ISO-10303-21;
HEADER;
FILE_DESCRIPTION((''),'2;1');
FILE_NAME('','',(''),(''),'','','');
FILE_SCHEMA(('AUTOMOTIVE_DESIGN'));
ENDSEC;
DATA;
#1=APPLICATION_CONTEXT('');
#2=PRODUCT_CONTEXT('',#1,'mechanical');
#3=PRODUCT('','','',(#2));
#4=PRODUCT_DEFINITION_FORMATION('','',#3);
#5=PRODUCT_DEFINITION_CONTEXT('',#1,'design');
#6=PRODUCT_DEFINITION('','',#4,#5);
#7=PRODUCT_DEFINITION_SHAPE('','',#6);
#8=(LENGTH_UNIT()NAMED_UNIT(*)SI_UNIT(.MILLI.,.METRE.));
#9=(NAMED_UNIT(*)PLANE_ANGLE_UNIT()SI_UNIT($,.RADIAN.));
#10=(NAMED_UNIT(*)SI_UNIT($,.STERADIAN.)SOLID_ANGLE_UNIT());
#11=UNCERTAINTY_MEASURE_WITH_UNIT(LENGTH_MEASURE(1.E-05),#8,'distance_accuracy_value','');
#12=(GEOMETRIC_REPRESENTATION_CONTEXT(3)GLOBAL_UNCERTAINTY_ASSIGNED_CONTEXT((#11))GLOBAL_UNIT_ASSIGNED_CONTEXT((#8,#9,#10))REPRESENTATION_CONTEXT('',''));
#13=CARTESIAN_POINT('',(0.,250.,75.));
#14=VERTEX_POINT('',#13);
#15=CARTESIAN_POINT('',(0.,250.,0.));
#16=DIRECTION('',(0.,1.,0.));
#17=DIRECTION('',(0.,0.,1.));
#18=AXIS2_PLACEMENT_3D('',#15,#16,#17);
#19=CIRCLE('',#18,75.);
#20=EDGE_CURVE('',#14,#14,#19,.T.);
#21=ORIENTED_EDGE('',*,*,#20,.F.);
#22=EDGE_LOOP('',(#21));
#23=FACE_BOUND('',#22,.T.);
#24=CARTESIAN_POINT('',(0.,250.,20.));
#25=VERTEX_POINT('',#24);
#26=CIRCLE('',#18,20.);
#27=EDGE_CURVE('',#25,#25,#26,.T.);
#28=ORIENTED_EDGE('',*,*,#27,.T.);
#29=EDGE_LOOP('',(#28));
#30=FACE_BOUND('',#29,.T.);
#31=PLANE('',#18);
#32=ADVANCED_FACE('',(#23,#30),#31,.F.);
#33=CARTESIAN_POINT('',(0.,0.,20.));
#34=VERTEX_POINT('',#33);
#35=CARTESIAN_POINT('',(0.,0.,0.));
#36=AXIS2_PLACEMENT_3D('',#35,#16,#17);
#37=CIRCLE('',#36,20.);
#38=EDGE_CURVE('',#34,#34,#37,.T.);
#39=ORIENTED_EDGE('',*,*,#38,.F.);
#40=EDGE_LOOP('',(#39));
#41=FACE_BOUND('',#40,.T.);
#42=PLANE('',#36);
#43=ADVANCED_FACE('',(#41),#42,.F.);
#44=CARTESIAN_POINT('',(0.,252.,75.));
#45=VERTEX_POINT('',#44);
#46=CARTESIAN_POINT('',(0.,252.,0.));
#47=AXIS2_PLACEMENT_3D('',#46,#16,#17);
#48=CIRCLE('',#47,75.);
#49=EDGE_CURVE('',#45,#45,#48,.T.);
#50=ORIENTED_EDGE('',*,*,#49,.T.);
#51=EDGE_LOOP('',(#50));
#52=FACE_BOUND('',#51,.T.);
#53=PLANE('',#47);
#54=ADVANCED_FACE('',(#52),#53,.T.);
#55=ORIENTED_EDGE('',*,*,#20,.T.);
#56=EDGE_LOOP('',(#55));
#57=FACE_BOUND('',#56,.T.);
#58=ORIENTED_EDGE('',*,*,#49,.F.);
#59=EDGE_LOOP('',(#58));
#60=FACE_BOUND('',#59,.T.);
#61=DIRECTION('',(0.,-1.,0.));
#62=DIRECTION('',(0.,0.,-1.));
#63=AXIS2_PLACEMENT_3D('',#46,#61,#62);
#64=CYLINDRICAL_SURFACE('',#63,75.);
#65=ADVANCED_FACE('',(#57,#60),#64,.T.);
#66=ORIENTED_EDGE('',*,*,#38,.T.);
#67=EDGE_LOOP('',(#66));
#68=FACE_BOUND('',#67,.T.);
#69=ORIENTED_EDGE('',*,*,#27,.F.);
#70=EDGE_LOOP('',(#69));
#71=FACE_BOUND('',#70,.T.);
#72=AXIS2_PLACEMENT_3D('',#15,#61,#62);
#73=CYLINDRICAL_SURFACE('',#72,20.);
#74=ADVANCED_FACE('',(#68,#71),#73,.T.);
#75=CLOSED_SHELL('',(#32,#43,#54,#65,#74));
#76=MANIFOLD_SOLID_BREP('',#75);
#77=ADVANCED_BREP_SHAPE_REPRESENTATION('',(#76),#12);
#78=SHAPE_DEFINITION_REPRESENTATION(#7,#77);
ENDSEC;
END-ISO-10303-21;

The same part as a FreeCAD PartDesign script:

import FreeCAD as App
import Part
import Sketcher
Q = App.Units.Quantity

doc = App.newDocument("Part")
body = doc.addObject("PartDesign::Body", "Body")

sketch1 = body.newObject("Sketcher::SketchObject", "Sketch")
sketch1.AttachmentSupport = (doc.getObject("XZ_Plane"), [""])
sketch1.MapMode = "FlatFace"
sketch1.addGeometry(Part.Circle(App.Vector(0, 0, 0), App.Vector(0, 0, 1), 20), False)
sketch1.addConstraint(Sketcher.Constraint("Coincident", 0, 3, -1, 1))
sketch1.addConstraint(Sketcher.Constraint("Diameter", 0, Q("40 mm")))
pad1 = body.newObject("PartDesign::Pad", "Pad")
pad1.Profile = sketch1
pad1.Length = 250
pad1.Reversed = True

sketch2 = body.newObject("Sketcher::SketchObject", "Sketch001")
sketch2.AttachmentSupport = (doc.getObject("XZ_Plane"), [""])
sketch2.MapMode = "FlatFace"
sketch2.AttachmentOffset = App.Placement(App.Vector(0, 0, -250), App.Rotation())
sketch2.addGeometry(Part.Circle(App.Vector(0, 0, 0), App.Vector(0, 0, 1), 75), False)
sketch2.addConstraint(Sketcher.Constraint("Coincident", 0, 3, -1, 1))
sketch2.addConstraint(Sketcher.Constraint("Diameter", 0, Q("150 mm")))
pad2 = body.newObject("PartDesign::Pad", "Pad001")
pad2.Profile = sketch2
pad2.Length = 2
pad2.Reversed = True

doc.recompute()
